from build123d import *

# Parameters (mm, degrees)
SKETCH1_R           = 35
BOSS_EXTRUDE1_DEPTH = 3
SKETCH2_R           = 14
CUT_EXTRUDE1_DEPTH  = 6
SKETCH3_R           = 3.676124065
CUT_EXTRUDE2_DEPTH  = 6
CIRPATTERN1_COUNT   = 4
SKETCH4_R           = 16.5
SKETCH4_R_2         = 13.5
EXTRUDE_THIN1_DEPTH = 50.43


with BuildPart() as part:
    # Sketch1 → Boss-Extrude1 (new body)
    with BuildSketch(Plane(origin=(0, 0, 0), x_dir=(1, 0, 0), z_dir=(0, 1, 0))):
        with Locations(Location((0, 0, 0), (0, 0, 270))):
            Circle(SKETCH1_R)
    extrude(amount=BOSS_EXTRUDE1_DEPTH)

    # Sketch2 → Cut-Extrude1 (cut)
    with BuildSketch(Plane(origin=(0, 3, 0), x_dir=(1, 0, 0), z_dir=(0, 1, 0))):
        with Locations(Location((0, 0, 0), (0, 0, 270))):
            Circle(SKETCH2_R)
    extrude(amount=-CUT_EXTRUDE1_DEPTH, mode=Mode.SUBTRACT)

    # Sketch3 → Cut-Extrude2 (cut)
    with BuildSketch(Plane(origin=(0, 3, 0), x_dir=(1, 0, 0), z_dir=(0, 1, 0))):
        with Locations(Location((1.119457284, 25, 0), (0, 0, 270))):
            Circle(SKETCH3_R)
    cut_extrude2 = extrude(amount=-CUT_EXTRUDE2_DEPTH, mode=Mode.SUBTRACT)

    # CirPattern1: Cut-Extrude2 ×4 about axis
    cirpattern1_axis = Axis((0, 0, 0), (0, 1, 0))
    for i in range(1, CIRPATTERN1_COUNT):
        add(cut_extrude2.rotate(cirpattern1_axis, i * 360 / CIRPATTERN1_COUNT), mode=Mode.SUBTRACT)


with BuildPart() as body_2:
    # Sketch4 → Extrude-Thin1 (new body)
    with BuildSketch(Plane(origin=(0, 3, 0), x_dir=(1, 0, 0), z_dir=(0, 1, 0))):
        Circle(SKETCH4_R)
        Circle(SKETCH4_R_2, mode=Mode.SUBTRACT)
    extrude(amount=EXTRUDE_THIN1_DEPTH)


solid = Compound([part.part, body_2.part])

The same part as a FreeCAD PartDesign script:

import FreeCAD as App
import Part
import Sketcher
Q = App.Units.Quantity

doc = App.newDocument("Part")
body = doc.addObject("PartDesign::Body", "Body")

# Sketch on XZ plane
sketch1 = body.newObject("Sketcher::SketchObject", "Sketch")
sketch1.AttachmentSupport = (doc.getObject("XZ_Plane"), [""])
sketch1.MapMode = "FlatFace"
sketch1.addGeometry(Part.Circle(App.Vector(0, 0, 0), App.Vector(0, 0, 1), 35), False)
sketch1.addConstraint(Sketcher.Constraint("Coincident", 0, 3, -1, 1))
sketch1.addConstraint(Sketcher.Constraint("Diameter", 0, Q("70 mm")))
pad1 = body.newObject("PartDesign::Pad", "Pad")
pad1.Profile = sketch1
pad1.Length = 3
pad1.Reversed = True

# Sketch on XZ plane
sketch2 = body.newObject("Sketcher::SketchObject", "Sketch001")
sketch2.AttachmentSupport = (doc.getObject("XZ_Plane"), [""])
sketch2.MapMode = "FlatFace"
sketch2.AttachmentOffset = App.Placement(App.Vector(0, 0, -3), App.Rotation())
sketch2.addGeometry(Part.Circle(App.Vector(0, 0, 0), App.Vector(0, 0, 1), 14), False)
sketch2.addConstraint(Sketcher.Constraint("Coincident", 0, 3, -1, 1))
sketch2.addConstraint(Sketcher.Constraint("Diameter", 0, Q("28 mm")))
pocket1 = body.newObject("PartDesign::Pocket", "Pocket")
pocket1.Profile = sketch2
pocket1.Length = 6
pocket1.Reversed = True

# Sketch on XZ plane
sketch3 = body.newObject("Sketcher::SketchObject", "Sketch002")
sketch3.AttachmentSupport = (doc.getObject("XZ_Plane"), [""])
sketch3.MapMode = "FlatFace"
sketch3.AttachmentOffset = App.Placement(App.Vector(0, 0, -3), App.Rotation())
sketch3.addGeometry(Part.Circle(App.Vector(1.119457, -25, 0), App.Vector(0, 0, 1), 3.676124), False)
sketch3.addConstraint(Sketcher.Constraint("DistanceY", 0, 3, -1, 1, Q("25 mm")))
sketch3.addConstraint(Sketcher.Constraint("Diameter", 0, Q("7.352248 mm")))
sketch3.addConstraint(Sketcher.Constraint("DistanceX", -1, 1, 0, 3, Q("1.119457 mm")))
pocket2 = body.newObject("PartDesign::Pocket", "Pocket001")
pocket2.Profile = sketch3
pocket2.Length = 6
pocket2.Reversed = True
doc.recompute()

polarpattern = body.newObject("PartDesign::PolarPattern", "PolarPattern")
polarpattern.Originals = [pocket2]
polarpattern.Axis = (doc.getObject("Y_Axis"), [""])
polarpattern.Angle = 360
polarpattern.Occurrences = 4
body.Tip = polarpattern
body2 = doc.addObject("PartDesign::Body", "Body001")

# Sketch on XZ plane
sketch4 = body2.newObject("Sketcher::SketchObject", "Sketch003")
sketch4.AttachmentSupport = (doc.getObject("XZ_Plane001"), [""])
sketch4.MapMode = "FlatFace"
sketch4.AttachmentOffset = App.Placement(App.Vector(0, 0, -3), App.Rotation())
sketch4.addGeometry(Part.Circle(App.Vector(0, 0, 0), App.Vector(0, 0, 1), 16.5), False)
sketch4.addGeometry(Part.Circle(App.Vector(0, 0, 0), App.Vector(0, 0, 1), 13.5), False)
sketch4.addConstraint(Sketcher.Constraint("Coincident", 0, 3, -1, 1))
sketch4.addConstraint(Sketcher.Constraint("Coincident", 1, 3, -1, 1))
sketch4.addConstraint(Sketcher.Constraint("Diameter", 0, Q("33 mm")))
sketch4.addConstraint(Sketcher.Constraint("Diameter", 1, Q("27 mm")))
pad2 = body2.newObject("PartDesign::Pad", "Pad001")
pad2.Profile = sketch4
pad2.Length = 50.43
pad2.Reversed = True

doc.recompute()
